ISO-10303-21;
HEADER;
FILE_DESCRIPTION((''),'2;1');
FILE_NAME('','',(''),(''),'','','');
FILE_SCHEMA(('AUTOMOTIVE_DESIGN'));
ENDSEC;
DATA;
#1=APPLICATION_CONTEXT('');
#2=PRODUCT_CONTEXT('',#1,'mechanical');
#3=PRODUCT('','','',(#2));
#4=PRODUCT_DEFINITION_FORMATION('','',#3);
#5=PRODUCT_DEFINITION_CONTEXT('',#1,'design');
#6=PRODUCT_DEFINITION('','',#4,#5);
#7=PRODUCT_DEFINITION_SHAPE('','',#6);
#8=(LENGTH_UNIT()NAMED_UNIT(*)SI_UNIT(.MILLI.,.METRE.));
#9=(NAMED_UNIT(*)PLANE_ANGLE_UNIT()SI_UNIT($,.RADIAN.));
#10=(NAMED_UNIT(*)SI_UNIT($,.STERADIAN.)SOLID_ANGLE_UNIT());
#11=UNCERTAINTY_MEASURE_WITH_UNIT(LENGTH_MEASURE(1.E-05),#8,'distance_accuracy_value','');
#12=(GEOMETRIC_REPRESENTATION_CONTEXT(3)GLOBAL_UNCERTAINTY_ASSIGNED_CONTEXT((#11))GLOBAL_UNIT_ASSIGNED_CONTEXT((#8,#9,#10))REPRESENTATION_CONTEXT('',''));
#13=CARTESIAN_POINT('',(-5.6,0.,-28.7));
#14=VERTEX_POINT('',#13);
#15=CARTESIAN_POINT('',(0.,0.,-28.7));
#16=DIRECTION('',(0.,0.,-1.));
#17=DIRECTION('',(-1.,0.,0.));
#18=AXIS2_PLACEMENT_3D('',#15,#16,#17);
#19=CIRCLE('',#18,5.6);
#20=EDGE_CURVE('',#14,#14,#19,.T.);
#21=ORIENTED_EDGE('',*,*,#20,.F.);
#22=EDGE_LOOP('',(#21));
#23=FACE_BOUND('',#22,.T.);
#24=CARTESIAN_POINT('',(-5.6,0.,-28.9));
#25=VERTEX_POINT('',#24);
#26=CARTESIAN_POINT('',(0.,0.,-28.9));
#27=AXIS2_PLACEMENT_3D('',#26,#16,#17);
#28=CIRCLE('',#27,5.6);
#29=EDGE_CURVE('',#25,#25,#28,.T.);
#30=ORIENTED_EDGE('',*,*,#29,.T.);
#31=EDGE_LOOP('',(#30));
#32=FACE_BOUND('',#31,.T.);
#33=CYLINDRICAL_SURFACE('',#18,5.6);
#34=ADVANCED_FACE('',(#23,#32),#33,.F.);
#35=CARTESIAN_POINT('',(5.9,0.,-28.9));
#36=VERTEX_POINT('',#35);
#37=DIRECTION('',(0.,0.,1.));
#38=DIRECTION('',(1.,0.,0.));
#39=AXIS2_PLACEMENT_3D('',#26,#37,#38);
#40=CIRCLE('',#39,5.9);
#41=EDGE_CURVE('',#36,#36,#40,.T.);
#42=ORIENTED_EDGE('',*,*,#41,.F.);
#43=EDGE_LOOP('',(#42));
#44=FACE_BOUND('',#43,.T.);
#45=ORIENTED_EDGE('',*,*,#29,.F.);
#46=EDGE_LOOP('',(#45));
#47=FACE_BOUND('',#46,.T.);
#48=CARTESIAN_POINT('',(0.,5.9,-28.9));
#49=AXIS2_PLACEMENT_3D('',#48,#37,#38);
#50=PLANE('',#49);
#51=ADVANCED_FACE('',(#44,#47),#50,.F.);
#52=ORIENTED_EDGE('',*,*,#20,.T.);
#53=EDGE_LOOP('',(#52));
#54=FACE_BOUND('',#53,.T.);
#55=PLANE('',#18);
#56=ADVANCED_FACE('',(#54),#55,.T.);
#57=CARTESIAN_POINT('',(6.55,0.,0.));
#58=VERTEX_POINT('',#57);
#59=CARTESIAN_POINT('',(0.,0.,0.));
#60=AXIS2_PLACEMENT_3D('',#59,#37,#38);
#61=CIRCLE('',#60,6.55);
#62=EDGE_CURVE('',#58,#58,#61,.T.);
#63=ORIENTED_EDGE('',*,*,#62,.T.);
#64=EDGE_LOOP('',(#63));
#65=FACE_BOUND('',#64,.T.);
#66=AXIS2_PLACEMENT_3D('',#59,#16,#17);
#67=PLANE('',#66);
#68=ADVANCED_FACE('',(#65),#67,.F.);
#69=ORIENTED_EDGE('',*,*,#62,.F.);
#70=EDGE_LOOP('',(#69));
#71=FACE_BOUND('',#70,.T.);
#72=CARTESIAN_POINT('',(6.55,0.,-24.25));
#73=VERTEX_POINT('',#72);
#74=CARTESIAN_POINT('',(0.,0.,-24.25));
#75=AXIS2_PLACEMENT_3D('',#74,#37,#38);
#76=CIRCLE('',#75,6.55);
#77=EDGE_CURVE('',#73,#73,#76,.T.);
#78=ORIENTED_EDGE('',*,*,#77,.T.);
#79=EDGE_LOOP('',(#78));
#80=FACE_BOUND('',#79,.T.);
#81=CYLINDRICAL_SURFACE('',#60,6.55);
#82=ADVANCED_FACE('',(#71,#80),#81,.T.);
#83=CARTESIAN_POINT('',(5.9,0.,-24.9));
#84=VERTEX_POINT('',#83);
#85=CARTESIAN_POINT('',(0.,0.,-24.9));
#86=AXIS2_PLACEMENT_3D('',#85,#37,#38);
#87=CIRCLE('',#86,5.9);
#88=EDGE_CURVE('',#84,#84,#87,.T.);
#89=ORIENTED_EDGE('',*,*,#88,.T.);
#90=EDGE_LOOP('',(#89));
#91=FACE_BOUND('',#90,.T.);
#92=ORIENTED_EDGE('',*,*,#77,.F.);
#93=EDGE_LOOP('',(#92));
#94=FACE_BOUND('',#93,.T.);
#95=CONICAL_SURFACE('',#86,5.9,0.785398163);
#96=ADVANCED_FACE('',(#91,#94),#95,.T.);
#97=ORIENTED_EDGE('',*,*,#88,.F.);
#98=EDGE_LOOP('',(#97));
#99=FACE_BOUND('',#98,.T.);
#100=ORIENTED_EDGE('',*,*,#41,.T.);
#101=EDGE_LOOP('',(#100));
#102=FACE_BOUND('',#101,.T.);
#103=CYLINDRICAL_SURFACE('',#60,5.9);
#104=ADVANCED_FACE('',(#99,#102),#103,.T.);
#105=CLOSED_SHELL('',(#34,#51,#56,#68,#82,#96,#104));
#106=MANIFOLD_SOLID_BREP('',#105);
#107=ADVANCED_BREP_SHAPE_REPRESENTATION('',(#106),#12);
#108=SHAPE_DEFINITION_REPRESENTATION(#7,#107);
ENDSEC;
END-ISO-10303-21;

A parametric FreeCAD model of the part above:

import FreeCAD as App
import Part
import Sketcher

V = App.Vector
Q = App.Units.Quantity

doc = App.newDocument("Part")
body = doc.addObject("PartDesign::Body", "Body")

# Sketch on YZ plane
sketch1 = body.newObject("Sketcher::SketchObject", "Sketch")
sketch1.AttachmentSupport = (doc.getObject("YZ_Plane"), [""])
sketch1.MapMode = "FlatFace"
sketch1.addGeometry([
    Part.LineSegment(V(6.5, 0, 0), V(0, 0, 0)),  # 0
    Part.LineSegment(V(0, 0, 0), V(0, -28.9, 0)),  # 1
    Part.LineSegment(V(0, -28.9, 0), V(5.9, -28.9, 0)),  # 2
    Part.LineSegment(V(5.9, -28.9, 0), V(5.9, -24.9, 0)),  # 3
    Part.LineSegment(V(5.9, -24.9, 0), V(6.5, -24.2, 0)),  # 4
    Part.LineSegment(V(6.5, -24.2, 0), V(6.5, 0, 0)),  # 5
], False)
sketch1.addConstraint([
    Sketcher.Constraint("Coincident", 0, 2, 1, 1),
    Sketcher.Constraint("Coincident", 1, 2, 2, 1),
    Sketcher.Constraint("Coincident", 2, 2, 3, 1),
    Sketcher.Constraint("Coincident", 3, 2, 4, 1),
    Sketcher.Constraint("Coincident", 4, 2, 5, 1),
    Sketcher.Constraint("Coincident", 5, 2, 0, 1),
    Sketcher.Constraint("Horizontal", 0),
    Sketcher.Constraint("Vertical", 1),
    Sketcher.Constraint("Horizontal", 2),
    Sketcher.Constraint("Vertical", 3),
    Sketcher.Constraint("Vertical", 5),
    Sketcher.Constraint("Coincident", 0, 2, -1, 1),
    Sketcher.Constraint("DistanceY", 3, 1, 3, 2, Q("4 mm")),
    Sketcher.Constraint("Angle", 4, Q("45 deg")),
    Sketcher.Constraint("DistanceX", 2, 1, 2, 2, Q("5.9 mm")),
    Sketcher.Constraint("DistanceY", 1, 2, 1, 1, Q("28.9 mm")),
    Sketcher.Constraint("DistanceX", 0, 2, 0, 1, Q("6.55 mm")),
])
revolution = body.newObject("PartDesign::Revolution", "Revolution")
revolution.Profile = sketch1
revolution.ReferenceAxis = (sketch1, ["V_Axis"])
revolution.Angle = 360

# Sketch on XY plane
sketch2 = body.newObject("Sketcher::SketchObject", "Sketch001")
sketch2.AttachmentSupport = (doc.getObject("XY_Plane"), [""])
sketch2.MapMode = "FlatFace"
sketch2.AttachmentOffset = App.Placement(V(0, 0, -28.9), App.Rotation())
sketch2.addGeometry(Part.Circle(V(0, 0, 0), V(0, 0, 1), 6), False)
sketch2.addConstraint([
    Sketcher.Constraint("Coincident", 0, 3, -1, 1),
    Sketcher.Constraint("Diameter", 0, Q("11.2 mm")),
])
pocket1 = body.newObject("PartDesign::Pocket", "Pocket")
pocket1.Profile = sketch2
pocket1.Length = 0.2
pocket1.Reversed = True

doc.recompute()
